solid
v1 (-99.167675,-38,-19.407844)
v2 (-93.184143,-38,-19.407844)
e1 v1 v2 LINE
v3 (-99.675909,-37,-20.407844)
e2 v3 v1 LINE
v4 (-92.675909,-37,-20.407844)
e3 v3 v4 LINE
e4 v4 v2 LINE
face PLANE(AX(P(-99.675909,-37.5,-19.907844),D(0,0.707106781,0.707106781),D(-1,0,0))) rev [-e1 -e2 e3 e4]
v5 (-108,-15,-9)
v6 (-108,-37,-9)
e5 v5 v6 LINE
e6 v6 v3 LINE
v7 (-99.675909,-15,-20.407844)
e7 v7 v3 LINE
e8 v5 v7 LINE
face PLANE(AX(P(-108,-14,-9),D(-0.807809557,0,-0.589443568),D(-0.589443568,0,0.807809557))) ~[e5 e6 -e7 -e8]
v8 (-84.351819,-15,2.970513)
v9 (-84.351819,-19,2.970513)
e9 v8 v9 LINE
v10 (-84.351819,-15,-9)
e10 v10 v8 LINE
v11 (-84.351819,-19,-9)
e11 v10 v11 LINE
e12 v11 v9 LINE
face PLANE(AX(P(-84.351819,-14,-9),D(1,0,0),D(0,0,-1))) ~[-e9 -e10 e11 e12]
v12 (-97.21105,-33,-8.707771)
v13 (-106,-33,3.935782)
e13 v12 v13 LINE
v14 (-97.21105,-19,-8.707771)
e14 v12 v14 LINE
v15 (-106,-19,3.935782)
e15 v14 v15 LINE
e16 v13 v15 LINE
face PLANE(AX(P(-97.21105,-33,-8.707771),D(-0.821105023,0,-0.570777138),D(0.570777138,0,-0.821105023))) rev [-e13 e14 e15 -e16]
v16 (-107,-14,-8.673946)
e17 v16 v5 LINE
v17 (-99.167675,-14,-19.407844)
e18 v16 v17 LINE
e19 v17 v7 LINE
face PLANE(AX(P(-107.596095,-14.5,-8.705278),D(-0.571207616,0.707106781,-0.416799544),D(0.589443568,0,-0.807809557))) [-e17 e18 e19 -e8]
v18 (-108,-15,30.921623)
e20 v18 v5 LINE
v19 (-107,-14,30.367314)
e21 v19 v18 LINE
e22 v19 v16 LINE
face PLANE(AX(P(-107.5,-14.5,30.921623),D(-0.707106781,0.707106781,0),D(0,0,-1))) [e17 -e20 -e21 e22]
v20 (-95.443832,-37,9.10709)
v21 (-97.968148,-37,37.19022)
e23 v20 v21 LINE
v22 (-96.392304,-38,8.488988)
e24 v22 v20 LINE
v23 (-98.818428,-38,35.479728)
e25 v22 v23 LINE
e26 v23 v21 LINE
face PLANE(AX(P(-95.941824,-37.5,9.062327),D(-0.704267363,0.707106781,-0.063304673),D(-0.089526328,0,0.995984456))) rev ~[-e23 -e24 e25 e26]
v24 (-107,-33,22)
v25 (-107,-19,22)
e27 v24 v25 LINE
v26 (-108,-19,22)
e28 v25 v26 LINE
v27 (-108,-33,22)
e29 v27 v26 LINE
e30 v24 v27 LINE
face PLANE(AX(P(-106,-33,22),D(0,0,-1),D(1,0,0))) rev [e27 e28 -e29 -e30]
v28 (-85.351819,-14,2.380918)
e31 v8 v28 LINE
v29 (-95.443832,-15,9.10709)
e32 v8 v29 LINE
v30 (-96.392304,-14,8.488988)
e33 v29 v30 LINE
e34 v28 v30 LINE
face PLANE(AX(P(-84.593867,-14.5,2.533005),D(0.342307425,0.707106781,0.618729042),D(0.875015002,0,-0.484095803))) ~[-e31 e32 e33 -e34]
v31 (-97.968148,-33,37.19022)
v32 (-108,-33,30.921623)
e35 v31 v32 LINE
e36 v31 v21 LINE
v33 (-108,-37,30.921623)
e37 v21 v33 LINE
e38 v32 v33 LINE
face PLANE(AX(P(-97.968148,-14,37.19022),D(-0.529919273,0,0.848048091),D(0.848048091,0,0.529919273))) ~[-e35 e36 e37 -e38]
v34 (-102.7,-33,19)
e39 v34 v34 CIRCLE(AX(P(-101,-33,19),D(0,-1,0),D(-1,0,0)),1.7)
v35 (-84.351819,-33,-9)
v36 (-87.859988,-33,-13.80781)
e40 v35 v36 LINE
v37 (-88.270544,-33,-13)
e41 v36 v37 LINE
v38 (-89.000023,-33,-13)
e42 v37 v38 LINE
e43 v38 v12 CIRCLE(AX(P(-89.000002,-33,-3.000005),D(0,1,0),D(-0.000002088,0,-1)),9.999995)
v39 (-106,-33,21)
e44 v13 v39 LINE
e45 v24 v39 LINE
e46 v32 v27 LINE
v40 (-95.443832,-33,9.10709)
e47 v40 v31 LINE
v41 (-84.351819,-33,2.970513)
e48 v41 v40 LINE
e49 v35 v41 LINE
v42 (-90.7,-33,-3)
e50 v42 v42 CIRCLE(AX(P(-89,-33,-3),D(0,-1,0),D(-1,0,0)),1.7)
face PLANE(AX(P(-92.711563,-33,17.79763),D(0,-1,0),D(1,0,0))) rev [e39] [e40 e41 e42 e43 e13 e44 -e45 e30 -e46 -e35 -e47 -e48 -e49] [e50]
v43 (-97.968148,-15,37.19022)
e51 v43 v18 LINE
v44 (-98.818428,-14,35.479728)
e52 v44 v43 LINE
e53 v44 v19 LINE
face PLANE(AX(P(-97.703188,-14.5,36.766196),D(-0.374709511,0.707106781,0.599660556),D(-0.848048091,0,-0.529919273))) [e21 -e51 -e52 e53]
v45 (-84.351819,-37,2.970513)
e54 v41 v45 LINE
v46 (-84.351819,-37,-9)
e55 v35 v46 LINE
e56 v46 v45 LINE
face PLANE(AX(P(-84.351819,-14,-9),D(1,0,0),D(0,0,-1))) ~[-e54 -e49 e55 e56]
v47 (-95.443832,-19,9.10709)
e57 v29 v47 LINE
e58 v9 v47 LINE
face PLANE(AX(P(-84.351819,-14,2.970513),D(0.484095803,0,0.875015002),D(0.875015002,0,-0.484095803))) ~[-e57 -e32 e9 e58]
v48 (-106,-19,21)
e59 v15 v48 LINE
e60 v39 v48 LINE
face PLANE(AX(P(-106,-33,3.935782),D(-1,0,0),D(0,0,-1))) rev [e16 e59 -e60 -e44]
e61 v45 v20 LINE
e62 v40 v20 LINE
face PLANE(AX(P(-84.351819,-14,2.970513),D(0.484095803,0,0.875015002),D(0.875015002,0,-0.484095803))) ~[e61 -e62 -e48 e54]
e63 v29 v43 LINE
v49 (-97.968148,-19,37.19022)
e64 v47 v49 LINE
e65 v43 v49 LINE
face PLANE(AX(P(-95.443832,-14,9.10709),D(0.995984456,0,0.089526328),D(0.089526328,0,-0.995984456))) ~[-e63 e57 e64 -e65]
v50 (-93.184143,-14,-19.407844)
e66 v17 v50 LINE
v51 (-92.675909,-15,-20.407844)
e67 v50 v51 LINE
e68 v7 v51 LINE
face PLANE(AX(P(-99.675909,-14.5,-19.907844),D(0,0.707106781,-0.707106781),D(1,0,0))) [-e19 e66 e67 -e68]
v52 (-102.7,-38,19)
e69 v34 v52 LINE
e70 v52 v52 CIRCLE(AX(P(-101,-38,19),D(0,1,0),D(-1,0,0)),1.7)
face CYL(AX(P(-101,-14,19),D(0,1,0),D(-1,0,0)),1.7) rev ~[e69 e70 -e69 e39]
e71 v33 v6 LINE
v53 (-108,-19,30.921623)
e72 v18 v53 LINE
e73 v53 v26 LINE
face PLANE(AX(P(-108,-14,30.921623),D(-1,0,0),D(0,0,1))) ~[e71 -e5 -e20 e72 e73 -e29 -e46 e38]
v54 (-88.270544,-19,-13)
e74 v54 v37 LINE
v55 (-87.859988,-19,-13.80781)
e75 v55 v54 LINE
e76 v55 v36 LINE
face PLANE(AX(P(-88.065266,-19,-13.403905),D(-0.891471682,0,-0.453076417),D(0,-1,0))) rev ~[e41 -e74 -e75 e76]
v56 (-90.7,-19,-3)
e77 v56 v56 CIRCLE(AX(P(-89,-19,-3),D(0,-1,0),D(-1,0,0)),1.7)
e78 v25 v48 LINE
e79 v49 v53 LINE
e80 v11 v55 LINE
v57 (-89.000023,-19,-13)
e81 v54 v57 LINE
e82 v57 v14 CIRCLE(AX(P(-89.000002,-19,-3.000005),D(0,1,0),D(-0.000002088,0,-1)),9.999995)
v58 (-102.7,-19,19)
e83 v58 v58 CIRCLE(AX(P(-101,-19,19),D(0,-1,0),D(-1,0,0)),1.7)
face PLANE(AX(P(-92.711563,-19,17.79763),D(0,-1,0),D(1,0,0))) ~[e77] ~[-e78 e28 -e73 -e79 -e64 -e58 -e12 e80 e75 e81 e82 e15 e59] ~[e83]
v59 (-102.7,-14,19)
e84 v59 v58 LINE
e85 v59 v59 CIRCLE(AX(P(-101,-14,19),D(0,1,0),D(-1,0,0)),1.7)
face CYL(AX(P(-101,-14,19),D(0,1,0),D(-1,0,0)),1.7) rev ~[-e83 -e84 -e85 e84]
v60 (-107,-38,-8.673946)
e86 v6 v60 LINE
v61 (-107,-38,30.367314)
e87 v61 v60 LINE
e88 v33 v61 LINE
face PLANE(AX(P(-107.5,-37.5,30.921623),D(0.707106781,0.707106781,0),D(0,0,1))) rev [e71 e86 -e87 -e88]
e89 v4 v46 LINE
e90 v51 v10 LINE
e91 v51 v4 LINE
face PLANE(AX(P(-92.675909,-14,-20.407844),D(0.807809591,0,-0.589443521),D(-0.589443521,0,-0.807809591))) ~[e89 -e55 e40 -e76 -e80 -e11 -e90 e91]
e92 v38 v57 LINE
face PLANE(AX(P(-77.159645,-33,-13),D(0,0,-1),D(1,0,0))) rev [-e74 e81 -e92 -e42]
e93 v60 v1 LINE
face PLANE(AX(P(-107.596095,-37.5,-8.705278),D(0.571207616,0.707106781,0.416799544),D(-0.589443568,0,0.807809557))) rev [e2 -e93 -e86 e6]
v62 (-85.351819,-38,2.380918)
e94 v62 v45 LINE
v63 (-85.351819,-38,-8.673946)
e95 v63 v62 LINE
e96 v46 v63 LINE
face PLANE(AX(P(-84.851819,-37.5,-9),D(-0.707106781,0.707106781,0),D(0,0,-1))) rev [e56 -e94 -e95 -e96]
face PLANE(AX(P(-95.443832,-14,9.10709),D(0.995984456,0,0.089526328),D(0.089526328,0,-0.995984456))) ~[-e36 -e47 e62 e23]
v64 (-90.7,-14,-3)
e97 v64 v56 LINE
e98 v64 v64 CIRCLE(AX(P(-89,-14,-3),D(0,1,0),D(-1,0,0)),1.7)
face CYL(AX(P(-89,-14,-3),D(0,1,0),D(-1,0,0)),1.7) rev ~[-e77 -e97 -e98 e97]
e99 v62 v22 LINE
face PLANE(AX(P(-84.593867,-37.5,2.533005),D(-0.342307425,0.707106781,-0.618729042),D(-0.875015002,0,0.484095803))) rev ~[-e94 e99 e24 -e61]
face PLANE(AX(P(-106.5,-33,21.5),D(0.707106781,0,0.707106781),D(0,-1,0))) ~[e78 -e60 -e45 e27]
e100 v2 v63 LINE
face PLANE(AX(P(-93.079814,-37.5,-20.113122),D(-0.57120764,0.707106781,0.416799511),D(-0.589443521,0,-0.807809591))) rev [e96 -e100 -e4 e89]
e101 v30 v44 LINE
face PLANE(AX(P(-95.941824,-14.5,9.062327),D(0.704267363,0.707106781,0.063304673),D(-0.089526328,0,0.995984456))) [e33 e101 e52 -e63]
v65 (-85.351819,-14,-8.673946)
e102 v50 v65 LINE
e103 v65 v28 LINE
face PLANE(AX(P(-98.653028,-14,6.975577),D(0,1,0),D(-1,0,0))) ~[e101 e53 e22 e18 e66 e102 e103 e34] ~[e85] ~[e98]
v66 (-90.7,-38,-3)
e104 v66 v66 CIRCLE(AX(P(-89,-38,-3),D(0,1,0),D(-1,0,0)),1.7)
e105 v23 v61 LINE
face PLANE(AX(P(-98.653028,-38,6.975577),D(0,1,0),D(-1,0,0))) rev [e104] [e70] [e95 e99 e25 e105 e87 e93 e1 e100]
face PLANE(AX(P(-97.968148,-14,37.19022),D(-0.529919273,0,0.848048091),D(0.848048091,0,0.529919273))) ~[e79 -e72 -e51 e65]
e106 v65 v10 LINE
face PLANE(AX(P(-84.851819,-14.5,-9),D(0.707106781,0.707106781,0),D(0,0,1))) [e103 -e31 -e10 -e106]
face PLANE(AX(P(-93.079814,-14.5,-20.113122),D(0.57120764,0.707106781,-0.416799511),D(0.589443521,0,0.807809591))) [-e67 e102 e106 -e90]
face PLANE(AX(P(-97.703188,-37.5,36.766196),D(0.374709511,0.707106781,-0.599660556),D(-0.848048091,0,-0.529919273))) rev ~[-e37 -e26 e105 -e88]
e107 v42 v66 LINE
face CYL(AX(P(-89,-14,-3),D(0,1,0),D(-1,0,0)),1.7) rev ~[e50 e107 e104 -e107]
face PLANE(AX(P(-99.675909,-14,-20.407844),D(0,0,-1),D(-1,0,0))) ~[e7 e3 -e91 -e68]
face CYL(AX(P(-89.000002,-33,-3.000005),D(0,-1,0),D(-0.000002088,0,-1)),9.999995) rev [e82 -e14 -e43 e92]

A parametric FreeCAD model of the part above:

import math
import FreeCAD as App
import Part
import Sketcher
from FreeCAD import Vector
Q = App.Units.Quantity


def edges_at(feature, points):
    """Names of the edges that pass closest to the given points."""
    edges = feature.Shape.Edges
    near = lambda p: min(range(len(edges)), key=lambda i: edges[i].distToShape(Part.Vertex(*p))[0])
    return sorted({f"Edge{near(p) + 1}" for p in points})


def add_polygon(sketch, points):
    """Adds a closed chain of lines whose ends are joined by coincident constraints."""
    first, n = sketch.GeometryCount, len(points)
    for a, b in zip(points, points[1:] + points[:1]):
        sketch.addGeometry(Part.LineSegment(App.Vector(*a, 0), App.Vector(*b, 0)), False)
    for i in range(n):
        sketch.addConstraint(Sketcher.Constraint("Coincident", first + i, 2, first + (i + 1) % n, 1))

doc = App.newDocument("Part")
params = doc.addObject("Spreadsheet::Sheet", "Params")
for row, (alias, value) in enumerate([
    ("pad1_length", "14 mm"),
    ("sketch2_diameter", "3.4 mm"),
    ("sketch2_width", "7 mm"),
    ("pad2_length", "24 mm"),
    ("chamfer_size", "1 mm"),
], start=1):
    params.set(f"A{row}", alias)
    params.set(f"B{row}", "=" + value)
    params.setAlias(f"B{row}", alias)

body = doc.addObject("PartDesign::Body", "Body")

# Sketch on XZ plane
sketch1 = body.newObject("Sketcher::SketchObject", "Sketch")
sketch1.AttachmentSupport = (doc.getObject("XZ_Plane"), [""])
sketch1.MapMode = "FlatFace"
sketch1.AttachmentOffset = App.Placement(Vector(0, 0, -33), App.Rotation())
sketch1.addGeometry([
    Part.ArcOfCircle(Part.Circle(Vector(-89, -3, 0), Vector(0, 0, 1), 10), math.radians(-145), math.radians(-90)),  # 0
    Part.LineSegment(Vector(-97, -9, 0), Vector(-106, 4, 0)),  # 1
    Part.LineSegment(Vector(-106, 4, 0), Vector(-106, 22, 0)),  # 2
    Part.LineSegment(Vector(-106, 22, 0), Vector(-113, 22, 0)),  # 3
    Part.LineSegment(Vector(-113, 22, 0), Vector(-113, 43, 0)),  # 4
    Part.LineSegment(Vector(-113, 43, 0), Vector(-77, 43, 0)),  # 5
    Part.LineSegment(Vector(-77, 43, 0), Vector(-77, -13, 0)),  # 6
    Part.LineSegment(Vector(-77, -13, 0), Vector(-89, -13, 0)),  # 7
], False)
sketch1.addConstraint([
    Sketcher.Constraint("Tangent", 0, 1, 1, 1),
    Sketcher.Constraint("Coincident", 1, 2, 2, 1),
    Sketcher.Constraint("Coincident", 2, 2, 3, 1),
    Sketcher.Constraint("Coincident", 3, 2, 4, 1),
    Sketcher.Constraint("Coincident", 4, 2, 5, 1),
    Sketcher.Constraint("Coincident", 5, 2, 6, 1),
    Sketcher.Constraint("Coincident", 6, 2, 7, 1),
    Sketcher.Constraint("Coincident", 7, 2, 0, 2),
    Sketcher.Constraint("Vertical", 2),
    Sketcher.Constraint("Horizontal", 3),
    Sketcher.Constraint("Vertical", 4),
    Sketcher.Constraint("Horizontal", 5),
    Sketcher.Constraint("Vertical", 6),
    Sketcher.Constraint("Horizontal", 7),
    Sketcher.Constraint("DistanceX", 1, 2, -1, 1, Q("106 mm")),
    Sketcher.Constraint("DistanceY", -1, 1, 2, 2, Q("22 mm")),
    Sketcher.Constraint("DistanceY", 6, 2, -1, 1, Q("13 mm")),
    Sketcher.Constraint("Radius", 0, Q("9.999995 mm")),
    Sketcher.Constraint("DistanceX", 7, 2, 7, 1, Q("11.840378 mm")),
    Sketcher.Constraint("DistanceY", 2, 1, 2, 2, Q("18.064218 mm")),
    Sketcher.Constraint("DistanceY", 0, 3, 4, 2, Q("45.659398 mm")),
    Sketcher.Constraint("DistanceX", 3, 2, 3, 1, Q("6.578117 mm")),
    Sketcher.Constraint("DistanceX", 5, 1, 5, 2, Q("35.418472 mm")),
    Sketcher.Constraint("DistanceX", 0, 1, -1, 1, Q("97.21105 mm")),
])
pad1 = body.newObject("PartDesign::Pad", "Pad")
pad1.Profile = sketch1
pad1.setExpression("Length", "Params.pad1_length")
body2 = doc.addObject("PartDesign::Body", "Body001")

# Sketch on XZ plane
sketch2 = body2.newObject("Sketcher::SketchObject", "Sketch001")
sketch2.AttachmentSupport = (doc.getObject("XZ_Plane001"), [""])
sketch2.MapMode = "FlatFace"
sketch2.AttachmentOffset = App.Placement(Vector(0, 0, -14), App.Rotation())
add_polygon(sketch2, [(-95.4, 9.1), (-84.4, 3), (-84.4, -9), (-92.7, -20.4), (-99.7, -20.4), (-108, -9), (-108, 30.9), (-98, 37.2)])  # lines 0-7
sketch2.addGeometry(Part.Circle(Vector(-89, -3, 0), Vector(0, 0, 1), 1.7), False)  # 8
sketch2.addGeometry(Part.Circle(Vector(-101, 19, 0), Vector(0, 0, 1), 1.7), False)  # 9
sketch2.addConstraint([
    Sketcher.Constraint("Vertical", 1),
    Sketcher.Constraint("Horizontal", 3),
    Sketcher.Constraint("Vertical", 5),
    Sketcher.Constraint("Equal", 8, 9),
    Sketcher.Constraint("Horizontal", 1, 2, 4, 2),
    Sketcher.Constraint("Equal", 2, 4),
    Sketcher.Constraint("Diameter", 8, Q("3.4 mm")),
    Sketcher.Constraint("DistanceX", 3, 2, 3, 1, Q("7 mm")),
    Sketcher.Constraint("Angle", 6, Q("32.000001 deg")),
    Sketcher.Constraint("DistanceX", 8, 3, -1, 1, Q("89 mm")),
    Sketcher.Constraint("DistanceY", 8, 3, -1, 1, Q("3 mm")),
    Sketcher.Constraint("DistanceX", 9, 3, -1, 1, Q("101 mm")),
    Sketcher.Constraint("DistanceY", -1, 1, 9, 3, Q("19 mm")),
    Sketcher.Constraint("DistanceY", 1, 2, -1, 1, Q("9 mm")),
    Sketcher.Constraint("DistanceX", 4, 2, -1, 1, Q("108 mm")),
    Sketcher.Constraint("Distance", 0, Q("12.676369 mm")),
    Sketcher.Constraint("DistanceY", 1, 2, 1, 1, Q("11.970513 mm")),
    Sketcher.Constraint("DistanceY", 5, 1, 5, 2, Q("39.921623 mm")),
    Sketcher.Constraint("DistanceX", 0, 2, -1, 1, Q("84.351819 mm")),
    Sketcher.Constraint("DistanceX", 6, 2, -1, 1, Q("97.968148 mm")),
    Sketcher.Constraint("DistanceX", 7, 2, -1, 1, Q("95.443832 mm")),
    Sketcher.Constraint("Distance", 2, Q("14.121947 mm")),
])
sketch2.setExpression("Constraints[14]", "Params.sketch2_diameter")
sketch2.setExpression("Constraints[15]", "Params.sketch2_width")
pad2 = body2.newObject("PartDesign::Pad", "Pad001")
pad2.Profile = sketch2
pad2.setExpression("Length", "Params.pad2_length")
pad2.Reversed = True
doc.recompute()

boolean = body2.newObject("PartDesign::Boolean", "Boolean")
boolean.Type = "Cut"
boolean.addObjects([body])
doc.recompute()

chamfer = body2.newObject("PartDesign::Chamfer", "Chamfer")
chamfer.Base = (boolean, edges_at(boolean, [
    (-89.898, 14, 6.039),
    (-96.706, 14, 23.149),
    (-102.984, 14, 34.056),
    (-108, 14, 10.961),
    (-103.838, 14, -14.704),
    (-96.176, 14, -20.408),
    (-88.514, 14, -14.704),
    (-84.352, 14, -3.015),
    (-108, 38, 10.961),
    (-103.838, 38, -14.704),
    (-96.176, 38, -20.408),
    (-87.271, 26, -13),
    (-88.514, 38, -14.704),
    (-106, 26, 22),
    (-89.898, 38, 6.039),
    (-96.706, 38, 23.149),
    (-102.984, 38, 34.056),
    (-84.352, 38, -3.015),
]))
chamfer.setExpression("Size", "Params.chamfer_size")
body3 = doc.addObject("PartDesign::Body", "Body002")
doc.recompute()

mirroring = doc.addObject("Part::Mirroring", "Mirroring")
mirroring.Source = body2
mirroring.Base = Vector(0, 0, 0)
mirroring.Normal = Vector(0, 1, 0)
body3.BaseFeature = mirroring
doc.recompute()
body2.Visibility = False
mirroring.Visibility = False

doc.recompute()
